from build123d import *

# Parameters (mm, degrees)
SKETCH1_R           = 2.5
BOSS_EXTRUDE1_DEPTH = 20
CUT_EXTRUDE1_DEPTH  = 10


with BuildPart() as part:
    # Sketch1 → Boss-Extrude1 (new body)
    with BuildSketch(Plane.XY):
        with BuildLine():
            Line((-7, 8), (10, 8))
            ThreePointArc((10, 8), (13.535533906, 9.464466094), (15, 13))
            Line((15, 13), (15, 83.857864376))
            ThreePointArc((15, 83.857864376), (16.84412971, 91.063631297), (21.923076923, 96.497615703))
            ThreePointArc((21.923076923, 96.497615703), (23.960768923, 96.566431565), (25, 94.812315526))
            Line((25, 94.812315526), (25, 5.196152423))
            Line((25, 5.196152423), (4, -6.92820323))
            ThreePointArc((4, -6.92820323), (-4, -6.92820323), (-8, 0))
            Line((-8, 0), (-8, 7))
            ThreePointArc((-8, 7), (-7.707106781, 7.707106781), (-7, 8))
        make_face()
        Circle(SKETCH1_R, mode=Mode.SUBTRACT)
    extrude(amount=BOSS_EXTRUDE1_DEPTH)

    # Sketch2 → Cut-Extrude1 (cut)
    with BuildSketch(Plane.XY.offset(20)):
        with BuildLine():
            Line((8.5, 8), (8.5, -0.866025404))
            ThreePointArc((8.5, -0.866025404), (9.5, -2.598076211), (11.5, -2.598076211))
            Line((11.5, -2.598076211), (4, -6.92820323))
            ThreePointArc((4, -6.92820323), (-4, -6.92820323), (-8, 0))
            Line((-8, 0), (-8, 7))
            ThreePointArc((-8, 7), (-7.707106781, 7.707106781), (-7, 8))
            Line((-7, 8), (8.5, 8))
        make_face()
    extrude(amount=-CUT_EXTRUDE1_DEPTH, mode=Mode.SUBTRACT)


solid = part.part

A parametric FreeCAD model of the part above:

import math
import FreeCAD as App
import Part
import Sketcher

V = App.Vector
Q = App.Units.Quantity

doc = App.newDocument("Part")
body = doc.addObject("PartDesign::Body", "Body")

# Sketch on XY plane
sketch1 = body.newObject("Sketcher::SketchObject", "Sketch")
sketch1.AttachmentSupport = (doc.getObject("XY_Plane"), [""])
sketch1.MapMode = "FlatFace"
sketch1.addGeometry(Part.LineSegment(V(10, 8, 0), V(-7, 8, 0)), False)
sketch1.addGeometry(Part.ArcOfCircle(Part.Circle(V(-7, 7, 0), V(0, 0, 1), 1), math.radians(90), math.radians(180)), False)
sketch1.addGeometry(Part.LineSegment(V(-8, 7, 0), V(-8, 0, 0)), False)
sketch1.addGeometry(Part.ArcOfCircle(Part.Circle(V(0, 0, 0), V(0, 0, 1), 8), math.radians(180), math.radians(300)), False)
sketch1.addGeometry(Part.LineSegment(V(4, -6.928203, 0), V(25, 5.196152, 0)), False)
sketch1.addGeometry(Part.LineSegment(V(25, 5.196152, 0), V(25, 94.812316, 0)), False)
sketch1.addGeometry(Part.ArcOfCircle(Part.Circle(V(23, 94.812316, 0), V(0, 0, 1), 2), math.radians(0), math.radians(122.57897)), False)
sketch1.addGeometry(Part.ArcOfCircle(Part.Circle(V(30, 83.857864, 0), V(0, 0, 1), 15), math.radians(122.57897), math.radians(180)), False)
sketch1.addGeometry(Part.LineSegment(V(15, 83.857864, 0), V(15, 13, 0)), False)
sketch1.addGeometry(Part.ArcOfCircle(Part.Circle(V(10, 13, 0), V(0, 0, 1), 5), math.radians(-90), math.radians(0)), False)
sketch1.addGeometry(Part.Circle(V(0, 0, 0), V(0, 0, 1), 2.5), False)
sketch1.addConstraint(Sketcher.Constraint("Tangent", 0, 2, 1, 1))
sketch1.addConstraint(Sketcher.Constraint("Tangent", 1, 2, 2, 1))
sketch1.addConstraint(Sketcher.Constraint("Tangent", 2, 2, 3, 1))
sketch1.addConstraint(Sketcher.Constraint("Tangent", 3, 2, 4, 1))
sketch1.addConstraint(Sketcher.Constraint("Coincident", 4, 2, 5, 1))
sketch1.addConstraint(Sketcher.Constraint("Tangent", 5, 2, 6, 1))
sketch1.addConstraint(Sketcher.Constraint("Tangent", 6, 2, 7, 1))
sketch1.addConstraint(Sketcher.Constraint("Tangent", 7, 2, 8, 1))
sketch1.addConstraint(Sketcher.Constraint("Tangent", 8, 2, 9, 2))
sketch1.addConstraint(Sketcher.Constraint("Tangent", 9, 1, 0, 1))
sketch1.addConstraint(Sketcher.Constraint("Horizontal", 0))
sketch1.addConstraint(Sketcher.Constraint("Vertical", 2))
sketch1.addConstraint(Sketcher.Constraint("Vertical", 5))
sketch1.addConstraint(Sketcher.Constraint("Vertical", 8))
sketch1.addConstraint(Sketcher.Constraint("Coincident", 3, 3, -1, 1))
sketch1.addConstraint(Sketcher.Constraint("Coincident", 10, 3, -1, 1))
sketch1.addConstraint(Sketcher.Constraint("Diameter", 10, 5.0))
sketch1.addConstraint(Sketcher.Constraint("Radius", 1, 1.0))
sketch1.addConstraint(Sketcher.Constraint("Radius", 3, 8.0))
sketch1.addConstraint(Sketcher.Constraint("Radius", 6, 2.0))
sketch1.addConstraint(Sketcher.Constraint("Radius", 7, 15.0))
sketch1.addConstraint(Sketcher.Constraint("Radius", 9, 5.0))
sketch1.addConstraint(Sketcher.Constraint("DistanceX", 0, 2, 0, 1, 17.0))
sketch1.addConstraint(Sketcher.Constraint("DistanceY", 2, 2, 2, 1, 7.0))
sketch1.addConstraint(Sketcher.Constraint("Angle", 4, Q("30 deg")))
sketch1.addConstraint(Sketcher.Constraint("DistanceX", -1, 1, 6, 3, 23.0))
sketch1.addConstraint(Sketcher.Constraint("DistanceY", 5, 1, 5, 2, 89.616163))
pad1 = body.newObject("PartDesign::Pad", "Pad")
pad1.Profile = sketch1
pad1.Length = 20

# Sketch on XY plane
sketch2 = body.newObject("Sketcher::SketchObject", "Sketch001")
sketch2.AttachmentSupport = (doc.getObject("XY_Plane"), [""])
sketch2.MapMode = "FlatFace"
sketch2.AttachmentOffset = App.Placement(V(0, 0, 20), App.Rotation())
sketch2.addGeometry(Part.LineSegment(V(8.5, -0.866025, 0), V(8.5, 8, 0)), False)
sketch2.addGeometry(Part.LineSegment(V(8.5, 8, 0), V(-7, 8, 0)), False)
sketch2.addGeometry(Part.ArcOfCircle(Part.Circle(V(-7, 7, 0), V(0, 0, 1), 1), math.radians(90), math.radians(180)), False)
sketch2.addGeometry(Part.LineSegment(V(-8, 7, 0), V(-8, 0, 0)), False)
sketch2.addGeometry(Part.ArcOfCircle(Part.Circle(V(0, 0, 0), V(0, 0, 1), 8), math.radians(180), math.radians(300)), False)
sketch2.addGeometry(Part.LineSegment(V(4, -6.928203, 0), V(11.5, -2.598076, 0)), False)
sketch2.addGeometry(Part.ArcOfCircle(Part.Circle(V(10.5, -0.866025, 0), V(0, 0, 1), 2), math.radians(-180), math.radians(-60)), False)
sketch2.addConstraint(Sketcher.Constraint("Coincident", 0, 2, 1, 1))
sketch2.addConstraint(Sketcher.Constraint("Tangent", 1, 2, 2, 1))
sketch2.addConstraint(Sketcher.Constraint("Tangent", 2, 2, 3, 1))
sketch2.addConstraint(Sketcher.Constraint("Tangent", 3, 2, 4, 1))
sketch2.addConstraint(Sketcher.Constraint("Tangent", 4, 2, 5, 1))
sketch2.addConstraint(Sketcher.Constraint("Tangent", 5, 2, 6, 2))
sketch2.addConstraint(Sketcher.Constraint("Tangent", 6, 1, 0, 1))
sketch2.addConstraint(Sketcher.Constraint("Vertical", 0))
sketch2.addConstraint(Sketcher.Constraint("Horizontal", 1))
sketch2.addConstraint(Sketcher.Constraint("Vertical", 3))
sketch2.addConstraint(Sketcher.Constraint("Coincident", 4, 3, -1, 1))
sketch2.addConstraint(Sketcher.Constraint("Radius", 2, 1.0))
sketch2.addConstraint(Sketcher.Constraint("Radius", 4, 8.0))
sketch2.addConstraint(Sketcher.Constraint("Radius", 6, 2.0))
sketch2.addConstraint(Sketcher.Constraint("DistanceY", 3, 2, 3, 1, 7.0))
sketch2.addConstraint(Sketcher.Constraint("Angle", 5, Q("30 deg")))
sketch2.addConstraint(Sketcher.Constraint("DistanceX", 1, 2, 1, 1, 15.5))
pocket1 = body.newObject("PartDesign::Pocket", "Pocket")
pocket1.Profile = sketch2
pocket1.Length = 10

doc.recompute()
